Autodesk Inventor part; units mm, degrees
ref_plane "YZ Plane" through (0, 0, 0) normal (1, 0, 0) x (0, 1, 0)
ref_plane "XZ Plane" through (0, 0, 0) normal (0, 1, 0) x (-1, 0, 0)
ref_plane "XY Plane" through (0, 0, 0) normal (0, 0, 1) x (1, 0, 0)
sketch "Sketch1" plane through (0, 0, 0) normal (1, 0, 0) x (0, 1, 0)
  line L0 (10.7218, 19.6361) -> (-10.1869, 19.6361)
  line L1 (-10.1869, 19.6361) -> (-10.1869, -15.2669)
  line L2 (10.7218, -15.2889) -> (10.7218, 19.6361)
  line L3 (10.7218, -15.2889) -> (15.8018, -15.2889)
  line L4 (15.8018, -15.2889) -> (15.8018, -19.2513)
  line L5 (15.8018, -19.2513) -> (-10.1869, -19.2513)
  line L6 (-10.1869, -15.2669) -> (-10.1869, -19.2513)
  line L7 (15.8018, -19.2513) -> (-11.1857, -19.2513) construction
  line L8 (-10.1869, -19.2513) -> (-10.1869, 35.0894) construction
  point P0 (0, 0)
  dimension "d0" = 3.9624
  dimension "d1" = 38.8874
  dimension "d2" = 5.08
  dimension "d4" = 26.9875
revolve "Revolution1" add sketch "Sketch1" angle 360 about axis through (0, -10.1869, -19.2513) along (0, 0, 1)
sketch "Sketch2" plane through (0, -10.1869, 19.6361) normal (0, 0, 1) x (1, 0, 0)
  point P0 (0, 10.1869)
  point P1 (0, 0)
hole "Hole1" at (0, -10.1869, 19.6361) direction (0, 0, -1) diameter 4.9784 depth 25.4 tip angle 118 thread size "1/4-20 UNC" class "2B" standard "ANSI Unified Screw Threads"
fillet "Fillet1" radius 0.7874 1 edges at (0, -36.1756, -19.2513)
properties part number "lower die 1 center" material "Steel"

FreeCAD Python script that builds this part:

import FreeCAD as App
import Part
import Sketcher
Q = App.Units.Quantity


def edges_at(feature, points):
    """Names of the edges that pass closest to the given points."""
    edges = feature.Shape.Edges
    near = lambda p: min(range(len(edges)), key=lambda i: edges[i].distToShape(Part.Vertex(*p))[0])
    return sorted({f"Edge{near(p) + 1}" for p in points})

doc = App.newDocument("Part")
params = doc.addObject("Spreadsheet::Sheet", "Params")
for row, (alias, value) in enumerate([
    ("sketch1_width", "0.2 in"),
    ("sketch1_height", "1.531 in"),
    ("sketch1_height2", "0.156 in"),
    ("revolution_angle", "360 deg"),
    ("sketch2_diameter", "0.196 in"),
    ("hole_diameter", "0.196 in"),
    ("hole_depth", "1 in"),
    ("fillet_radius", "0.031 in"),
], start=1):
    params.set(f"A{row}", alias)
    params.set(f"B{row}", "=" + value)
    params.setAlias(f"B{row}", alias)

body = doc.addObject("PartDesign::Body", "Body")

sketch1 = body.newObject("Sketcher::SketchObject", "Sketch")
sketch1.AttachmentSupport = (doc.getObject("YZ_Plane"), [""])
sketch1.MapMode = "FlatFace"
sketch1.addGeometry([
    Part.LineSegment(App.Vector(10.7218, -15.2889, 0), App.Vector(10.7218, 19.6361, 0)),
    Part.LineSegment(App.Vector(10.7218, 19.6361, 0), App.Vector(-10.1869, 19.6361, 0)),
    Part.LineSegment(App.Vector(-10.1869, 19.6361, 0), App.Vector(-10.1869, -19.2513, 0)),
    Part.LineSegment(App.Vector(-10.1869, -19.2513, 0), App.Vector(15.8018, -19.2513, 0)),
    Part.LineSegment(App.Vector(15.8018, -19.2513, 0), App.Vector(15.8018, -15.2889, 0)),
    Part.LineSegment(App.Vector(15.8018, -15.2889, 0), App.Vector(10.7218, -15.2889, 0)),
], False)
sketch1.addGeometry(Part.LineSegment(App.Vector(-10.1869, -19.2513, 0), App.Vector(-10.1869, 19.6361, 0)), True)
sketch1.addConstraint([
    Sketcher.Constraint("Coincident", 0, 2, 1, 1),
    Sketcher.Constraint("Coincident", 1, 2, 2, 1),
    Sketcher.Constraint("Coincident", 2, 2, 3, 1),
    Sketcher.Constraint("Coincident", 3, 2, 4, 1),
    Sketcher.Constraint("Coincident", 4, 2, 5, 1),
    Sketcher.Constraint("Coincident", 5, 2, 0, 1),
    Sketcher.Constraint("Vertical", 0),
    Sketcher.Constraint("Horizontal", 1),
    Sketcher.Constraint("Vertical", 2),
    Sketcher.Constraint("Horizontal", 3),
    Sketcher.Constraint("Vertical", 4),
    Sketcher.Constraint("Horizontal", 5),
    Sketcher.Constraint("Vertical", 6),
    Sketcher.Constraint("Coincident", 6, 1, 2, 2),
    Sketcher.Constraint("Horizontal", 0, 2, 6, 2),
    Sketcher.Constraint("DistanceX", 5, 2, 5, 1, Q("0.2 in")),
    Sketcher.Constraint("DistanceY", 2, 2, 2, 1, Q("1.531 in")),
    Sketcher.Constraint("DistanceY", 4, 1, 4, 2, Q("0.156 in")),
    Sketcher.Constraint("DistanceX", 1, 2, 1, 1, 20.9087),
    Sketcher.Constraint("DistanceX", -1, 1, 0, 2, 10.7218),
    Sketcher.Constraint("DistanceY", -1, 1, 0, 2, 19.636),
])
sketch1.setExpression("Constraints[15]", "Params.sketch1_width")
sketch1.setExpression("Constraints[16]", "Params.sketch1_height")
sketch1.setExpression("Constraints[17]", "Params.sketch1_height2")
revolution = body.newObject("PartDesign::Revolution", "Revolution")
revolution.Profile = sketch1
revolution.ReferenceAxis = (sketch1, ["Axis0"])
revolution.setExpression("Angle", "Params.revolution_angle")

sketch2 = body.newObject("Sketcher::SketchObject", "Sketch001")
sketch2.AttachmentSupport = (doc.getObject("XY_Plane"), [""])
sketch2.MapMode = "FlatFace"
sketch2.AttachmentOffset = App.Placement(App.Vector(0, 0, 19.6361), App.Rotation())
sketch2.addGeometry(Part.Circle(App.Vector(0, -10.1869, 0), App.Vector(0, 0, 1), 2.4892), False)
sketch2.addConstraint([
    Sketcher.Constraint("PointOnObject", 0, 3, -2),
    Sketcher.Constraint("Diameter", 0, Q("0.196 in")),
    Sketcher.Constraint("DistanceY", 0, 3, -1, 1, 10.187),
])
sketch2.setExpression("Constraints[1]", "Params.sketch2_diameter")
doc.recompute()
hole = body.newObject("PartDesign::Hole", "Hole")
hole.Profile = sketch2
hole.ThreadType = "None"
hole.setExpression("Diameter", "Params.hole_diameter")
hole.DepthType = "Dimension"
hole.setExpression("Depth", "Params.hole_depth")
hole.DrillPoint = "Angled"
hole.DrillPointAngle = 118
doc.recompute()

fillet = body.newObject("PartDesign::Fillet", "Fillet")
fillet.Base = (hole, edges_at(hole, [(0, -36.176, -19.251)]))
fillet.setExpression("Radius", "Params.fillet_radius")

doc.recompute()
